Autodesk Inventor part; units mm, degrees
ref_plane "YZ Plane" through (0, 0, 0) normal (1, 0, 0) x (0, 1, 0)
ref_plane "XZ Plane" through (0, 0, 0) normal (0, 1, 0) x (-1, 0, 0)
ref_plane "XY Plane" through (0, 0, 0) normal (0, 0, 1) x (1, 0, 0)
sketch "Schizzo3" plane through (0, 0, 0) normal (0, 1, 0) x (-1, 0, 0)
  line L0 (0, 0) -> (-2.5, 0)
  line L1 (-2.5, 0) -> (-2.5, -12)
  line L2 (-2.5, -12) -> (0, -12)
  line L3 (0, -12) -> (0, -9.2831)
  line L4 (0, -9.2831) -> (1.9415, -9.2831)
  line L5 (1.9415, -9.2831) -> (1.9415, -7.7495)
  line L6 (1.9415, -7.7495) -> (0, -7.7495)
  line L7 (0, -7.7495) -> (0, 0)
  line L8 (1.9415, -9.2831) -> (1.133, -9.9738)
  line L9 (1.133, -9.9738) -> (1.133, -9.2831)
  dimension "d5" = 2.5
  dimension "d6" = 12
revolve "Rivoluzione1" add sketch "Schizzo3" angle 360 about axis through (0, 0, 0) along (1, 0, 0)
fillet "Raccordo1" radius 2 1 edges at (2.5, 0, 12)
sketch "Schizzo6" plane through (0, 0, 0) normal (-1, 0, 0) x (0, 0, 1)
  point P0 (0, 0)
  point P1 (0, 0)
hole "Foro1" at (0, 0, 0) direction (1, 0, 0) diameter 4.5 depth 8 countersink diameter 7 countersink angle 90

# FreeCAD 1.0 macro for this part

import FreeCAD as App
import Part
import Sketcher


def edges_at(feature, points):
    """Names of the edges that pass closest to the given points."""
    edges = feature.Shape.Edges
    near = lambda p: min(range(len(edges)), key=lambda i: edges[i].distToShape(Part.Vertex(*p))[0])
    return sorted({f"Edge{near(p) + 1}" for p in points})

doc = App.newDocument("Part")
body = doc.addObject("PartDesign::Body", "Body")

# Sketch on XZ plane
sketch1 = doc.addObject("Sketcher::SketchObject", "Sketch")
body.addObject(sketch1)
sketch1.AttachmentSupport = (doc.XZ_Plane, [""])
sketch1.MapMode = "FlatFace"
sketch1.addGeometry([
    Part.LineSegment(App.Vector(0, -7.7, 0), App.Vector(0, 0, 0)),  # 0
    Part.LineSegment(App.Vector(0, 0, 0), App.Vector(2.5, 0, 0)),  # 1
    Part.LineSegment(App.Vector(2.5, 0, 0), App.Vector(2.5, -12, 0)),  # 2
    Part.LineSegment(App.Vector(2.5, -12, 0), App.Vector(0, -12, 0)),  # 3
    Part.LineSegment(App.Vector(0, -12, 0), App.Vector(0, -9.3, 0)),  # 4
    Part.LineSegment(App.Vector(0, -9.3, 0), App.Vector(-1.1, -9.3, 0)),  # 5
    Part.LineSegment(App.Vector(-1.1, -9.3, 0), App.Vector(-1.1, -10, 0)),  # 6
    Part.LineSegment(App.Vector(-1.1, -10, 0), App.Vector(-1.9, -9.3, 0)),  # 7
    Part.LineSegment(App.Vector(-1.9, -9.3, 0), App.Vector(-1.9, -7.7, 0)),  # 8
    Part.LineSegment(App.Vector(-1.9, -7.7, 0), App.Vector(0, -7.7, 0)),  # 9
], False)
sketch1.addConstraint([
    Sketcher.Constraint("Coincident", 0, 2, 1, 1),
    Sketcher.Constraint("Coincident", 1, 2, 2, 1),
    Sketcher.Constraint("Coincident", 2, 2, 3, 1),
    Sketcher.Constraint("Coincident", 3, 2, 4, 1),
    Sketcher.Constraint("Coincident", 4, 2, 5, 1),
    Sketcher.Constraint("Coincident", 5, 2, 6, 1),
    Sketcher.Constraint("Coincident", 6, 2, 7, 1),
    Sketcher.Constraint("Coincident", 7, 2, 8, 1),
    Sketcher.Constraint("Coincident", 8, 2, 9, 1),
    Sketcher.Constraint("Coincident", 9, 2, 0, 1),
    Sketcher.Constraint("Vertical", 0),
    Sketcher.Constraint("Horizontal", 1),
    Sketcher.Constraint("Vertical", 2),
    Sketcher.Constraint("Horizontal", 3),
    Sketcher.Constraint("Vertical", 4),
    Sketcher.Constraint("Horizontal", 5),
    Sketcher.Constraint("Vertical", 6),
    Sketcher.Constraint("Vertical", 8),
    Sketcher.Constraint("Horizontal", 9),
    Sketcher.Constraint("Coincident", 0, 2, -1, 1),
    Sketcher.Constraint("PointOnObject", 3, 2, -2),
    Sketcher.Constraint("Horizontal", 5, 2, 7, 2),
    Sketcher.Constraint("DistanceY", 2, 2, 2, 1, 12.0),
    Sketcher.Constraint("DistanceX", 1, 1, 1, 2, 2.5),
    Sketcher.Constraint("DistanceX", 5, 2, 5, 1, 1.133),
    Sketcher.Constraint("DistanceY", 4, 1, 4, 2, 2.717),
    Sketcher.Constraint("DistanceX", 9, 1, 9, 2, 1.9415),
    Sketcher.Constraint("DistanceY", 0, 1, 0, 2, 7.7495),
    Sketcher.Constraint("DistanceY", 6, 2, 6, 1, 0.6907),
])
revolution = doc.addObject("PartDesign::Revolution", "Revolution")
body.addObject(revolution)
revolution.Profile = sketch1
revolution.ReferenceAxis = (sketch1, ["H_Axis"])
revolution.Angle = 360
doc.recompute()

fillet = doc.addObject("PartDesign::Fillet", "Fillet")
body.addObject(fillet)
fillet.Base = (revolution, edges_at(revolution, [(2.5, 0, 12)]))
fillet.Radius = 2

# Sketch on YZ plane
sketch2 = doc.addObject("Sketcher::SketchObject", "Sketch001")
body.addObject(sketch2)
sketch2.AttachmentSupport = (doc.YZ_Plane, [""])
sketch2.MapMode = "FlatFace"
sketch2.addGeometry(Part.Circle(App.Vector(0, 0, 0), App.Vector(0, 0, 1), 2.2), False)
sketch2.addConstraint([
    Sketcher.Constraint("Coincident", 0, 3, -1, 1),
    Sketcher.Constraint("Diameter", 0, 4.5),
])
doc.recompute()
hole = doc.addObject("PartDesign::Hole", "Hole")
body.addObject(hole)
hole.Profile = sketch2
hole.ThreadType = "None"
hole.Diameter = 4.5
hole.DepthType = "Dimension"
hole.Depth = 8
hole.DrillPoint = "Flat"
hole.HoleCutType = "Countersink"
hole.HoleCutDiameter = 7
hole.HoleCutCountersinkAngle = 90
hole.Reversed = True

doc.recompute()
